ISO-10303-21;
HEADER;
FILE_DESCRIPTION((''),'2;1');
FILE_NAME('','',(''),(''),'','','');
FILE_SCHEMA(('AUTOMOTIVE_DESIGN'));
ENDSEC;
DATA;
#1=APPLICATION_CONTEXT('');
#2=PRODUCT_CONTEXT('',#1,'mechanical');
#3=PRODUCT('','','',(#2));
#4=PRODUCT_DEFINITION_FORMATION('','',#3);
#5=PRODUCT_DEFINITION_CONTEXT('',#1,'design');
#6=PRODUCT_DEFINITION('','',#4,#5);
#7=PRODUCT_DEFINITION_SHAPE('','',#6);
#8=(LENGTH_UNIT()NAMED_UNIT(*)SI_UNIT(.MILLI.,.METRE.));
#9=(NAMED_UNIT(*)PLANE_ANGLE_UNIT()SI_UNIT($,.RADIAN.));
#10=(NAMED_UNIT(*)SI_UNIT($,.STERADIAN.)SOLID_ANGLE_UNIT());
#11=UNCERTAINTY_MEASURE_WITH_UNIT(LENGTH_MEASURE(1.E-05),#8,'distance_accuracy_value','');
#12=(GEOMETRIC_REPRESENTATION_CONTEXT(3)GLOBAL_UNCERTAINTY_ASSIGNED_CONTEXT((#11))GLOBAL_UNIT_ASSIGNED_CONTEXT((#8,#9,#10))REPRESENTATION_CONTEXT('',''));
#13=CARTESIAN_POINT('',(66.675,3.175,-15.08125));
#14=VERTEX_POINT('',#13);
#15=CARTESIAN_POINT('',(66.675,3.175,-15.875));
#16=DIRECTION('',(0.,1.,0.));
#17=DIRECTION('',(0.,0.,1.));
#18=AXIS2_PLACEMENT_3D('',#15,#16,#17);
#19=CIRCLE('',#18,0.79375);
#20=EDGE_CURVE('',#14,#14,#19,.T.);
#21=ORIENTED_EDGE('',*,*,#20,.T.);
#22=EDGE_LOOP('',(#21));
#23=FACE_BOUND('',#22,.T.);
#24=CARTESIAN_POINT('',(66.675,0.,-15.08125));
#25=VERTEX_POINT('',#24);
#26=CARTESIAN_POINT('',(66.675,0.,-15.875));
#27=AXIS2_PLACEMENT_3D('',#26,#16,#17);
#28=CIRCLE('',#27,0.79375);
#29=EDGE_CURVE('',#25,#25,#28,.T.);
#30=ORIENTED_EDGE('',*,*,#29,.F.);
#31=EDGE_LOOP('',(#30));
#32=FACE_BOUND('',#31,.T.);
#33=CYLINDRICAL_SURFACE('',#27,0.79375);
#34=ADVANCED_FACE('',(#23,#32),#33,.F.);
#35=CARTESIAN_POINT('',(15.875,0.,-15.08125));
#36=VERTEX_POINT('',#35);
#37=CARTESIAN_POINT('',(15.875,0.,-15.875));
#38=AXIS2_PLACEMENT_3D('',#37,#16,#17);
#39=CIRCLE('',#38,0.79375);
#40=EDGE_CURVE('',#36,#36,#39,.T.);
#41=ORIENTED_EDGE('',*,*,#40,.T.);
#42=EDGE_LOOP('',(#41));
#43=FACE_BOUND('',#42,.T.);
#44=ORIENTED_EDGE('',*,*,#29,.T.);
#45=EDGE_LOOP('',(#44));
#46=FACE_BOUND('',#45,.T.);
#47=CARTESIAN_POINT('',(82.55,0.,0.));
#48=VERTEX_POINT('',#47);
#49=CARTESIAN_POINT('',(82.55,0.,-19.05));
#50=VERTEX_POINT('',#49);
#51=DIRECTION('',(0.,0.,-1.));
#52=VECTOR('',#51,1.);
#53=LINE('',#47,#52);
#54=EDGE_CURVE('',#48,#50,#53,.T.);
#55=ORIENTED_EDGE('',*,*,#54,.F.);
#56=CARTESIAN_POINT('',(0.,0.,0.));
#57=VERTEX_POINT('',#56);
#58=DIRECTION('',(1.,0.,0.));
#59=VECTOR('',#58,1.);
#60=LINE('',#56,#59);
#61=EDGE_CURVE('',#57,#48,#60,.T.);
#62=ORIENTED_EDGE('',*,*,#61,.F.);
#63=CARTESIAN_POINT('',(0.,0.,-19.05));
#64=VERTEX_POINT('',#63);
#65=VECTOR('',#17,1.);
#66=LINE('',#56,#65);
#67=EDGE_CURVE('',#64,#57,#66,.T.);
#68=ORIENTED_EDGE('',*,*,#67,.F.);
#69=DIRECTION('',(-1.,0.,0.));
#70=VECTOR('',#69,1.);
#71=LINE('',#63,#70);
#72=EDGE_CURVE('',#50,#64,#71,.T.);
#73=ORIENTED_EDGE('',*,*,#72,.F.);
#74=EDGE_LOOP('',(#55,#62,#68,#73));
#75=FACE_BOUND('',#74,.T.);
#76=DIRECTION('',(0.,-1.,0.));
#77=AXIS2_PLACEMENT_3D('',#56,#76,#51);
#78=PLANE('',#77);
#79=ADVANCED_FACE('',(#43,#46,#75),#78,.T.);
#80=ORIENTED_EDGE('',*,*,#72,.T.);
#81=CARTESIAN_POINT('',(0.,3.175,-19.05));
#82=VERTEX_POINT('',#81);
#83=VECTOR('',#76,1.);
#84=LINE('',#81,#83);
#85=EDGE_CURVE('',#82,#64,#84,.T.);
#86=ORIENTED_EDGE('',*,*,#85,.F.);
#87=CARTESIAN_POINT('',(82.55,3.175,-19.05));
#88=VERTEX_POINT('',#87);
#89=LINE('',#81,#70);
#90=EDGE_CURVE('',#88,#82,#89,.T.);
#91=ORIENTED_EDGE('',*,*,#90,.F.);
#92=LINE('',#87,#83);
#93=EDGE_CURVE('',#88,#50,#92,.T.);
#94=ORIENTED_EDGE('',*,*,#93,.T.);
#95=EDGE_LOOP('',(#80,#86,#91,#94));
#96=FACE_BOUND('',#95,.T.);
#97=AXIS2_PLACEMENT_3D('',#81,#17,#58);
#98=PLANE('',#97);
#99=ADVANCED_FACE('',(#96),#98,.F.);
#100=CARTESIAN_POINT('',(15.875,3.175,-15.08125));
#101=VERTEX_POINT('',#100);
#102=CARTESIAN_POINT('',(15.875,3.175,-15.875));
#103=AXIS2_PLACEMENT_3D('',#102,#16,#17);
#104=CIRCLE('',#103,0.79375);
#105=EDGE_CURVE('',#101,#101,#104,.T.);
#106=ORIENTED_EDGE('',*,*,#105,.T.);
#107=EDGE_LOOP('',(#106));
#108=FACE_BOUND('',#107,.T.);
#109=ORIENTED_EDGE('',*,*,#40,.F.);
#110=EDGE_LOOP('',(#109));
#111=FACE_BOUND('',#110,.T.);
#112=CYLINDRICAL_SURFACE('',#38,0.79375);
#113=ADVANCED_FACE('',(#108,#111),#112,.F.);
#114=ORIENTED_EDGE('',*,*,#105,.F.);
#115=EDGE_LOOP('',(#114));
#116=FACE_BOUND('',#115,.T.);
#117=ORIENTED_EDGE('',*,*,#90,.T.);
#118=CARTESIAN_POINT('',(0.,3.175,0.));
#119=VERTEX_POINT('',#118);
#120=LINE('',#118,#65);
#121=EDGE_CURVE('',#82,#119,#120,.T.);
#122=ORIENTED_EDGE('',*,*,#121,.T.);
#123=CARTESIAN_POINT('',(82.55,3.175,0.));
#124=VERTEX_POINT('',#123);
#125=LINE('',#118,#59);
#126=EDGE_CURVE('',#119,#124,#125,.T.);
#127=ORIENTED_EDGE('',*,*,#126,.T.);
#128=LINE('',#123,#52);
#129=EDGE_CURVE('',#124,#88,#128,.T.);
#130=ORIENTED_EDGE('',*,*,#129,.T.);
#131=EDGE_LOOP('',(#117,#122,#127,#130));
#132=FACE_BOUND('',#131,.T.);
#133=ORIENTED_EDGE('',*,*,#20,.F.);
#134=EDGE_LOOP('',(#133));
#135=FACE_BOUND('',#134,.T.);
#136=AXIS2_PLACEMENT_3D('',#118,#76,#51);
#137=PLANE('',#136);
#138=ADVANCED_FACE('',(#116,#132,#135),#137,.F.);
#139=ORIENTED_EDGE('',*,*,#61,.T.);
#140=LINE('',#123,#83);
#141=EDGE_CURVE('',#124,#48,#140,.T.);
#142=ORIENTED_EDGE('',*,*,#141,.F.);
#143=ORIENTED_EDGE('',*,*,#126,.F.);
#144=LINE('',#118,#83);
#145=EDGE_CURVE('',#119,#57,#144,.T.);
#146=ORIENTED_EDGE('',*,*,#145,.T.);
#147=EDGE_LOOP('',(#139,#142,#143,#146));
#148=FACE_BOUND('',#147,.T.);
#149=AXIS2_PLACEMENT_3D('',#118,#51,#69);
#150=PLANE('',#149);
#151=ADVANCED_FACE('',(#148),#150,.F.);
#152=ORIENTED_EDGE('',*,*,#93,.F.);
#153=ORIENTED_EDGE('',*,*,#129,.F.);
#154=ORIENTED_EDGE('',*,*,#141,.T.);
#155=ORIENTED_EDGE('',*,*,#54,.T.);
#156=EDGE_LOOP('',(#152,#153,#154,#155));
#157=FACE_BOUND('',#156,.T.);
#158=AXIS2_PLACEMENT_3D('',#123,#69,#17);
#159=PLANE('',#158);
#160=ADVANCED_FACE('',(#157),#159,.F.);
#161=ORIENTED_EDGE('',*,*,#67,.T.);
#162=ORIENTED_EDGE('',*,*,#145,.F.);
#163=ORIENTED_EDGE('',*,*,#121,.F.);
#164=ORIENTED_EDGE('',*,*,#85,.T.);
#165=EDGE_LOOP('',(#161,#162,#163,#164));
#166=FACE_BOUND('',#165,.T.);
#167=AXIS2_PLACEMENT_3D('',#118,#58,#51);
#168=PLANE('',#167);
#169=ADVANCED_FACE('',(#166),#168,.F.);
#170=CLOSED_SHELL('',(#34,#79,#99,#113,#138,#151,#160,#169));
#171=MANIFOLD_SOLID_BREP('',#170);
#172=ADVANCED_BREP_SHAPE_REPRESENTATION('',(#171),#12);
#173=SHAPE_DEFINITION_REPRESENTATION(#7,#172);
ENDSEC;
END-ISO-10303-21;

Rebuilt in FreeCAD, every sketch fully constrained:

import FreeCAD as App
import Part
import Sketcher

V = App.Vector
Q = App.Units.Quantity

doc = App.newDocument("Part")
params = doc.addObject("Spreadsheet::Sheet", "Params")
for row, (alias, value) in enumerate([
    ("sketch1_width", "3.25 in"),
    ("sketch1_height", "0.75 in"),
    ("pad1_length", "0.125 in"),
    ("sketch2_diameter", "0.0625 in"),
], start=1):
    params.set(f"A{row}", alias)
    params.set(f"B{row}", "=" + value)
    params.setAlias(f"B{row}", alias)

body = doc.addObject("PartDesign::Body", "Body")

# Sketch on XZ plane
sketch1 = body.newObject("Sketcher::SketchObject", "Sketch")
sketch1.AttachmentSupport = (doc.getObject("XZ_Plane"), [""])
sketch1.MapMode = "FlatFace"
sketch1.addGeometry(Part.LineSegment(V(0, -19, 0), V(0, 0, 0)), False)
sketch1.addGeometry(Part.LineSegment(V(0, 0, 0), V(83, 0, 0)), False)
sketch1.addGeometry(Part.LineSegment(V(83, 0, 0), V(83, -19, 0)), False)
sketch1.addGeometry(Part.LineSegment(V(83, -19, 0), V(0, -19, 0)), False)
sketch1.addConstraint(Sketcher.Constraint("Coincident", 0, 2, 1, 1))
sketch1.addConstraint(Sketcher.Constraint("Coincident", 1, 2, 2, 1))
sketch1.addConstraint(Sketcher.Constraint("Coincident", 2, 2, 3, 1))
sketch1.addConstraint(Sketcher.Constraint("Coincident", 3, 2, 0, 1))
sketch1.addConstraint(Sketcher.Constraint("Vertical", 0))
sketch1.addConstraint(Sketcher.Constraint("Horizontal", 1))
sketch1.addConstraint(Sketcher.Constraint("Vertical", 2))
sketch1.addConstraint(Sketcher.Constraint("Horizontal", 3))
sketch1.addConstraint(Sketcher.Constraint("Coincident", 0, 2, -1, 1))
sketch1.addConstraint(Sketcher.Constraint("DistanceX", 1, 1, 1, 2, Q("3.25 in")))
sketch1.addConstraint(Sketcher.Constraint("DistanceY", 0, 1, 0, 2, Q("0.75 in")))
sketch1.setExpression("Constraints[9]", "Params.sketch1_width")
sketch1.setExpression("Constraints[10]", "Params.sketch1_height")
pad1 = body.newObject("PartDesign::Pad", "Pad")
pad1.Profile = sketch1
pad1.setExpression("Length", "Params.pad1_length")
pad1.Reversed = True

# Sketch on XZ plane
sketch2 = body.newObject("Sketcher::SketchObject", "Sketch001")
sketch2.AttachmentSupport = (doc.getObject("XZ_Plane"), [""])
sketch2.MapMode = "FlatFace"
sketch2.AttachmentOffset = App.Placement(V(0, 0, -0.125 * 25.4), App.Rotation())
sketch2.addGeometry(Part.Circle(V(15.9, -15.9, 0), V(0, 0, 1), 0.8), False)
sketch2.addGeometry(Part.Circle(V(66.7, -15.9, 0), V(0, 0, 1), 0.8), False)
sketch2.addConstraint(Sketcher.Constraint("Equal", 0, 1))
sketch2.addConstraint(Sketcher.Constraint("Horizontal", 0, 3, 1, 3))
sketch2.addConstraint(Sketcher.Constraint("Diameter", 0, Q("0.0625 in")))
sketch2.addConstraint(Sketcher.Constraint("DistanceX", 0, 3, 1, 3, Q("2 in")))
sketch2.addConstraint(Sketcher.Constraint("DistanceX", -1, 1, 0, 3, Q("0.625 in")))
sketch2.addConstraint(Sketcher.Constraint("DistanceY", 0, 3, -1, 1, Q("0.625 in")))
sketch2.setExpression("Constraints[2]", "Params.sketch2_diameter")
pocket1 = body.newObject("PartDesign::Pocket", "Pocket")
pocket1.Profile = sketch2
pocket1.Type = "ThroughAll"
pocket1.Reversed = True

doc.recompute()
